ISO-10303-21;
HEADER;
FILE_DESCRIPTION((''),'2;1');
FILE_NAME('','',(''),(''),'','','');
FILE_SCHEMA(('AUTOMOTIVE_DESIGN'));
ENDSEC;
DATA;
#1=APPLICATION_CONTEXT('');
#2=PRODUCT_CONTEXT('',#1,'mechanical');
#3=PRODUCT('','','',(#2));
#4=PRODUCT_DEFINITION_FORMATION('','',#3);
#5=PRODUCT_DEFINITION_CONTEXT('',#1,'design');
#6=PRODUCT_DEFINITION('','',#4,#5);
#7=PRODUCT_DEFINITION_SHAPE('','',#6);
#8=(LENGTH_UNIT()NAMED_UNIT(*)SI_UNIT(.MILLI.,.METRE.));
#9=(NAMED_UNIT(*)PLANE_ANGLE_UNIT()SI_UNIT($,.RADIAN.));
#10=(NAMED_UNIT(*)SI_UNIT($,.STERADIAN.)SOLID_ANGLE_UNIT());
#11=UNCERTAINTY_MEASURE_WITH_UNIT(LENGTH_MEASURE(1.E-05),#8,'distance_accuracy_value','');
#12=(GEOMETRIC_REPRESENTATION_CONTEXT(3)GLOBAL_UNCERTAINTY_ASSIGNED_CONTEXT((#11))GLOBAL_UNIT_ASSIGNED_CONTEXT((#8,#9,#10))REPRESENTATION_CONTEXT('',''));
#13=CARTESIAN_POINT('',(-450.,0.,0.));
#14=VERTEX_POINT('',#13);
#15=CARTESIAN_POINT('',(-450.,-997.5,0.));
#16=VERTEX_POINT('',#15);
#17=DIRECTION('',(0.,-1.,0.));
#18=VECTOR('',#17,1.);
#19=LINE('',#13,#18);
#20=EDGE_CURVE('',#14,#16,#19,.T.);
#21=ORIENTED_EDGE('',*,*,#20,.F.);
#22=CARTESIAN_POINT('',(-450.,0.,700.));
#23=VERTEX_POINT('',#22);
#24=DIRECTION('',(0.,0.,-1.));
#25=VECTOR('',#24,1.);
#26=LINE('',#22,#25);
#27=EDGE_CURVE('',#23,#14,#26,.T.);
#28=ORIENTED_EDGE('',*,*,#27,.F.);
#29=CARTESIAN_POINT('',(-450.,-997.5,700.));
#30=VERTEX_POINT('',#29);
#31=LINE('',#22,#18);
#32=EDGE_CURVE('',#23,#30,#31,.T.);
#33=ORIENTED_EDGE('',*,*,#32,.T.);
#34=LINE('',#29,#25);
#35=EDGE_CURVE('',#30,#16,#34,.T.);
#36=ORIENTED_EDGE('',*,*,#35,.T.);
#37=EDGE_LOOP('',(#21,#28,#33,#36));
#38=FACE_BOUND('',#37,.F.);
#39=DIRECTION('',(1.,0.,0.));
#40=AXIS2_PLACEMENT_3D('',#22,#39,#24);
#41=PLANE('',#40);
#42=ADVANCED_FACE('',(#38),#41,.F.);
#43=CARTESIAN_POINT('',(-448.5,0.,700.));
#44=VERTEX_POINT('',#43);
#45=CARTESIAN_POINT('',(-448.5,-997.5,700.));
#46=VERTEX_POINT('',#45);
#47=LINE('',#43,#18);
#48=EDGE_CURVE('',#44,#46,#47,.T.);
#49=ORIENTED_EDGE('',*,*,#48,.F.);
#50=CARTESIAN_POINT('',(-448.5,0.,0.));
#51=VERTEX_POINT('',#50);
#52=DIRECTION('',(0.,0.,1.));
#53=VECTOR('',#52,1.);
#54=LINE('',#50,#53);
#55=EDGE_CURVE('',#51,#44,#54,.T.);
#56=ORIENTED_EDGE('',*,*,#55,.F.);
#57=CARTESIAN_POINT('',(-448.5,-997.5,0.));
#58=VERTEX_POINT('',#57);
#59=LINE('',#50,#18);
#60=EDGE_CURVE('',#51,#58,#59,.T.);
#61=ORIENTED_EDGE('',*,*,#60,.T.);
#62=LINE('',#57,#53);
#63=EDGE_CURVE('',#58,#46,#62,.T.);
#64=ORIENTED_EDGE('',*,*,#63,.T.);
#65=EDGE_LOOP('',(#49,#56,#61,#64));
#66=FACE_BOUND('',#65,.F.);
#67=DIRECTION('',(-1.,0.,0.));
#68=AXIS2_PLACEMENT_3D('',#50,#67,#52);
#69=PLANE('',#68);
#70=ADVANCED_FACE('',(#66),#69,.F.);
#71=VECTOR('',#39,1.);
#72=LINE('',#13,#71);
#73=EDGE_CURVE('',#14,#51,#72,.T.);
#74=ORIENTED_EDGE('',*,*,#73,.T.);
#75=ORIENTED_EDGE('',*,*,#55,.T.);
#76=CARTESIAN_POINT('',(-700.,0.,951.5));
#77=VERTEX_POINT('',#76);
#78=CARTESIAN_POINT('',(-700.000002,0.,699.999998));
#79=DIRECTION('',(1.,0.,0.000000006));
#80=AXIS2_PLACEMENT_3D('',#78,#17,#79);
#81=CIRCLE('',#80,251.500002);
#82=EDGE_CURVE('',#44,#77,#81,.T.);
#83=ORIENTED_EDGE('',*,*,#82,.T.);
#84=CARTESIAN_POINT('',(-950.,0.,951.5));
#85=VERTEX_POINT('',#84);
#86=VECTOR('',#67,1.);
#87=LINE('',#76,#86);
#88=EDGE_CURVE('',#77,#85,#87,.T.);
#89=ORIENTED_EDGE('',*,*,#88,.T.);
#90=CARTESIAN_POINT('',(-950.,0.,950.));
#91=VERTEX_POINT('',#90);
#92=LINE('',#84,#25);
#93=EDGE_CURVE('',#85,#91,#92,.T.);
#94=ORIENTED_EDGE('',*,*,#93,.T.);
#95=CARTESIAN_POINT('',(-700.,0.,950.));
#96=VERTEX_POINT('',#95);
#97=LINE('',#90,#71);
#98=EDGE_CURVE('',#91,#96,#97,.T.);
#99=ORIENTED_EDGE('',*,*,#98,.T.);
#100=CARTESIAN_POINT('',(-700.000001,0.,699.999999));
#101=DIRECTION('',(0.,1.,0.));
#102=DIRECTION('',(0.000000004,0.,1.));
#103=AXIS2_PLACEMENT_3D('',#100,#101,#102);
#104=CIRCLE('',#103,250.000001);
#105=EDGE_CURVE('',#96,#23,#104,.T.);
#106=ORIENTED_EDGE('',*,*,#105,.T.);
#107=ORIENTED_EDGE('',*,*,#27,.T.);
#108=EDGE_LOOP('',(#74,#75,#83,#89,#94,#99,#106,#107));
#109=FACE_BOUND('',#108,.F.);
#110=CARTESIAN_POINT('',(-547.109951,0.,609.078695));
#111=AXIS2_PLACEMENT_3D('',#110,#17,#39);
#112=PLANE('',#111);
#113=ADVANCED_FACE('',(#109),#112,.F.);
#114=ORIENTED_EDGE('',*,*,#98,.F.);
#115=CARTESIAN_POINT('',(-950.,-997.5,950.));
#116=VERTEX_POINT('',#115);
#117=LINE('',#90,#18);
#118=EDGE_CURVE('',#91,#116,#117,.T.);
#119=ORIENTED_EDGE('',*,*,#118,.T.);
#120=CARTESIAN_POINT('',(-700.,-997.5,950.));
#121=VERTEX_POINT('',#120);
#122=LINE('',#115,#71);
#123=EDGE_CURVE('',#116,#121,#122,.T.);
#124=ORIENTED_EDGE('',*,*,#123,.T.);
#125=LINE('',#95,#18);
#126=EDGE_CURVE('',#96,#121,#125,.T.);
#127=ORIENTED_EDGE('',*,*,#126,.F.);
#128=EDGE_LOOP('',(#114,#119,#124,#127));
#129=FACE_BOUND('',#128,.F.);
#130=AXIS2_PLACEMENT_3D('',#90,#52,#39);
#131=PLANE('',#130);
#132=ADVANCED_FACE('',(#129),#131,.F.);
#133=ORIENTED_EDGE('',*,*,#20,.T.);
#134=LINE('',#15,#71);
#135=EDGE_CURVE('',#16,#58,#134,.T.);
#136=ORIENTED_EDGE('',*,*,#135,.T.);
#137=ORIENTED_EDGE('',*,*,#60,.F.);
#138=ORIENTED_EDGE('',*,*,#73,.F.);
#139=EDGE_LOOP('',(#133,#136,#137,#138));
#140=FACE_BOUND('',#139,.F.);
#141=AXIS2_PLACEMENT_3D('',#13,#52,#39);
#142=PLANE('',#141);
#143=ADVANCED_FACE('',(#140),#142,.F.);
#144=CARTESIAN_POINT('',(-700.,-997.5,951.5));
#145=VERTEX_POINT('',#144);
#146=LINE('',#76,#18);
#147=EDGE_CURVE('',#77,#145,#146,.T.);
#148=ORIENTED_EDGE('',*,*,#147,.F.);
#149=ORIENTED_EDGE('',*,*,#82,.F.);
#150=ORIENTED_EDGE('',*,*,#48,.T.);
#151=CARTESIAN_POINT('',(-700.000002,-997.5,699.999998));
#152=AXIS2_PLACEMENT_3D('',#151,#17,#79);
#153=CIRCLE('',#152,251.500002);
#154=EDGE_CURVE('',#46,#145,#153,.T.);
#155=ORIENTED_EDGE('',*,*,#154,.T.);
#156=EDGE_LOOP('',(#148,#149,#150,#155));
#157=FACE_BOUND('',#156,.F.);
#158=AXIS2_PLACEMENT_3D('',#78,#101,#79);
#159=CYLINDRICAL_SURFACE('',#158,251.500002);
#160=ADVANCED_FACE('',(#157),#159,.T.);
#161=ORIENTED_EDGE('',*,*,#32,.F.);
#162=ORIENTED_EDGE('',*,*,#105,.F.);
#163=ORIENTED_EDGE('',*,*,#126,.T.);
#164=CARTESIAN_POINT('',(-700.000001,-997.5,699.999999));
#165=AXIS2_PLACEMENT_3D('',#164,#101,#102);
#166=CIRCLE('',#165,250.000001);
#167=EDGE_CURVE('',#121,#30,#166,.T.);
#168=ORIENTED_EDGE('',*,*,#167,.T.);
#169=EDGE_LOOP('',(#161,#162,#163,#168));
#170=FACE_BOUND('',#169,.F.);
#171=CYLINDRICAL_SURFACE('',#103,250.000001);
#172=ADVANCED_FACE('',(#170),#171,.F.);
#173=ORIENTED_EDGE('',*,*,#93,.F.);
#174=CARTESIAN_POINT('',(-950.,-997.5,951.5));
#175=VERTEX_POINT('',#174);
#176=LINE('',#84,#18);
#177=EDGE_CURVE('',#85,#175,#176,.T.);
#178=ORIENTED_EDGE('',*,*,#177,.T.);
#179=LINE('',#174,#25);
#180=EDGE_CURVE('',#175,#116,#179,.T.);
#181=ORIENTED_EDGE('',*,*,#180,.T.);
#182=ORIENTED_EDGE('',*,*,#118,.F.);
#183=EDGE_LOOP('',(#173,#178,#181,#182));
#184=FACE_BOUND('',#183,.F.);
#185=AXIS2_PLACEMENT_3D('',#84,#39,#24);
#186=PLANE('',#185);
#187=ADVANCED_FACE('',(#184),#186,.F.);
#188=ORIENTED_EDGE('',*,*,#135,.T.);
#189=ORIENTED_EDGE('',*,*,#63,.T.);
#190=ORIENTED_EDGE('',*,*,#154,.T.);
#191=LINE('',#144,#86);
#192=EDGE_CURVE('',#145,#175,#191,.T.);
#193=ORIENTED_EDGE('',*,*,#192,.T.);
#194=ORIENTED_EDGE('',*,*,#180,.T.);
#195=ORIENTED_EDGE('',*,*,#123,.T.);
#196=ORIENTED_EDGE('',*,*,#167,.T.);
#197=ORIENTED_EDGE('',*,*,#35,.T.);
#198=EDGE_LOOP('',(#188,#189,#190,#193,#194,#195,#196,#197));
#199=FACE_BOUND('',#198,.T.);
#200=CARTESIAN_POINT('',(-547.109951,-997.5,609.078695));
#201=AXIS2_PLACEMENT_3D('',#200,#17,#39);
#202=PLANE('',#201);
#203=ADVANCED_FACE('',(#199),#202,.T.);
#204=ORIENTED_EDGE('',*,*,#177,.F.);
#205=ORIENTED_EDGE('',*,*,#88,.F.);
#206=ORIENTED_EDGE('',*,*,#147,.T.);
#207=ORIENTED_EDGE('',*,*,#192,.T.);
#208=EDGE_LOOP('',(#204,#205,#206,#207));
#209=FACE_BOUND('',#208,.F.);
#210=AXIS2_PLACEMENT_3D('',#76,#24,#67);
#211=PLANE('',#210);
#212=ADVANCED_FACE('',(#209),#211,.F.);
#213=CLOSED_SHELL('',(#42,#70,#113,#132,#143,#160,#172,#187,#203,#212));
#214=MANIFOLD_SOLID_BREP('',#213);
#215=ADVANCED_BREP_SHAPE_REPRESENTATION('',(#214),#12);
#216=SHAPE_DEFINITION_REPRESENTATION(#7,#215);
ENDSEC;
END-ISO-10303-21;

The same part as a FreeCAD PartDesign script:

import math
import FreeCAD as App
import Part
import Sketcher

V = App.Vector

doc = App.newDocument("Part")
body = doc.addObject("PartDesign::Body", "Body")

sketch1 = body.newObject("Sketcher::SketchObject", "Sketch")
sketch1.AttachmentSupport = (doc.getObject("XZ_Plane"), [""])
sketch1.MapMode = "FlatFace"
sketch1.addGeometry(Part.LineSegment(V(-450, 0, 0), V(-448.5, 0, 0)), False)
sketch1.addGeometry(Part.LineSegment(V(-448.5, 0, 0), V(-448.5, 700, 0)), False)
sketch1.addGeometry(Part.ArcOfCircle(Part.Circle(V(-700, 700, 0), V(0, 0, 1), 251.5), math.radians(0), math.radians(90)), False)
sketch1.addGeometry(Part.LineSegment(V(-700, 951.5, 0), V(-950, 951.5, 0)), False)
sketch1.addGeometry(Part.LineSegment(V(-950, 951.5, 0), V(-950, 950, 0)), False)
sketch1.addGeometry(Part.LineSegment(V(-950, 950, 0), V(-700, 950, 0)), False)
sketch1.addGeometry(Part.ArcOfCircle(Part.Circle(V(-700, 700, 0), V(0, 0, 1), 250), math.radians(0), math.radians(90)), False)
sketch1.addGeometry(Part.LineSegment(V(-450, 700, 0), V(-450, 0, 0)), False)
sketch1.addConstraint(Sketcher.Constraint("Coincident", 0, 2, 1, 1))
sketch1.addConstraint(Sketcher.Constraint("Tangent", 1, 2, 2, 1))
sketch1.addConstraint(Sketcher.Constraint("Tangent", 2, 2, 3, 1))
sketch1.addConstraint(Sketcher.Constraint("Coincident", 3, 2, 4, 1))
sketch1.addConstraint(Sketcher.Constraint("Coincident", 4, 2, 5, 1))
sketch1.addConstraint(Sketcher.Constraint("Tangent", 5, 2, 6, 2))
sketch1.addConstraint(Sketcher.Constraint("Tangent", 6, 1, 7, 1))
sketch1.addConstraint(Sketcher.Constraint("Coincident", 7, 2, 0, 1))
sketch1.addConstraint(Sketcher.Constraint("Horizontal", 0))
sketch1.addConstraint(Sketcher.Constraint("Vertical", 1))
sketch1.addConstraint(Sketcher.Constraint("Horizontal", 3))
sketch1.addConstraint(Sketcher.Constraint("Vertical", 4))
sketch1.addConstraint(Sketcher.Constraint("Horizontal", 5))
sketch1.addConstraint(Sketcher.Constraint("Vertical", 7))
sketch1.addConstraint(Sketcher.Constraint("Coincident", 6, 3, 2, 3))
sketch1.addConstraint(Sketcher.Constraint("PointOnObject", 0, 2, -1))
sketch1.addConstraint(Sketcher.Constraint("Radius", 6, 250.000001))
sketch1.addConstraint(Sketcher.Constraint("Radius", 2, 251.500002))
sketch1.addConstraint(Sketcher.Constraint("DistanceX", 3, 2, 3, 1, 250.0))
sketch1.addConstraint(Sketcher.Constraint("DistanceY", 1, 1, 1, 2, 700.0))
sketch1.addConstraint(Sketcher.Constraint("DistanceX", 2, 3, -1, 1, 700.000002))
pad1 = body.newObject("PartDesign::Pad", "Pad")
pad1.Profile = sketch1
pad1.Length = 997.5

doc.recompute()
